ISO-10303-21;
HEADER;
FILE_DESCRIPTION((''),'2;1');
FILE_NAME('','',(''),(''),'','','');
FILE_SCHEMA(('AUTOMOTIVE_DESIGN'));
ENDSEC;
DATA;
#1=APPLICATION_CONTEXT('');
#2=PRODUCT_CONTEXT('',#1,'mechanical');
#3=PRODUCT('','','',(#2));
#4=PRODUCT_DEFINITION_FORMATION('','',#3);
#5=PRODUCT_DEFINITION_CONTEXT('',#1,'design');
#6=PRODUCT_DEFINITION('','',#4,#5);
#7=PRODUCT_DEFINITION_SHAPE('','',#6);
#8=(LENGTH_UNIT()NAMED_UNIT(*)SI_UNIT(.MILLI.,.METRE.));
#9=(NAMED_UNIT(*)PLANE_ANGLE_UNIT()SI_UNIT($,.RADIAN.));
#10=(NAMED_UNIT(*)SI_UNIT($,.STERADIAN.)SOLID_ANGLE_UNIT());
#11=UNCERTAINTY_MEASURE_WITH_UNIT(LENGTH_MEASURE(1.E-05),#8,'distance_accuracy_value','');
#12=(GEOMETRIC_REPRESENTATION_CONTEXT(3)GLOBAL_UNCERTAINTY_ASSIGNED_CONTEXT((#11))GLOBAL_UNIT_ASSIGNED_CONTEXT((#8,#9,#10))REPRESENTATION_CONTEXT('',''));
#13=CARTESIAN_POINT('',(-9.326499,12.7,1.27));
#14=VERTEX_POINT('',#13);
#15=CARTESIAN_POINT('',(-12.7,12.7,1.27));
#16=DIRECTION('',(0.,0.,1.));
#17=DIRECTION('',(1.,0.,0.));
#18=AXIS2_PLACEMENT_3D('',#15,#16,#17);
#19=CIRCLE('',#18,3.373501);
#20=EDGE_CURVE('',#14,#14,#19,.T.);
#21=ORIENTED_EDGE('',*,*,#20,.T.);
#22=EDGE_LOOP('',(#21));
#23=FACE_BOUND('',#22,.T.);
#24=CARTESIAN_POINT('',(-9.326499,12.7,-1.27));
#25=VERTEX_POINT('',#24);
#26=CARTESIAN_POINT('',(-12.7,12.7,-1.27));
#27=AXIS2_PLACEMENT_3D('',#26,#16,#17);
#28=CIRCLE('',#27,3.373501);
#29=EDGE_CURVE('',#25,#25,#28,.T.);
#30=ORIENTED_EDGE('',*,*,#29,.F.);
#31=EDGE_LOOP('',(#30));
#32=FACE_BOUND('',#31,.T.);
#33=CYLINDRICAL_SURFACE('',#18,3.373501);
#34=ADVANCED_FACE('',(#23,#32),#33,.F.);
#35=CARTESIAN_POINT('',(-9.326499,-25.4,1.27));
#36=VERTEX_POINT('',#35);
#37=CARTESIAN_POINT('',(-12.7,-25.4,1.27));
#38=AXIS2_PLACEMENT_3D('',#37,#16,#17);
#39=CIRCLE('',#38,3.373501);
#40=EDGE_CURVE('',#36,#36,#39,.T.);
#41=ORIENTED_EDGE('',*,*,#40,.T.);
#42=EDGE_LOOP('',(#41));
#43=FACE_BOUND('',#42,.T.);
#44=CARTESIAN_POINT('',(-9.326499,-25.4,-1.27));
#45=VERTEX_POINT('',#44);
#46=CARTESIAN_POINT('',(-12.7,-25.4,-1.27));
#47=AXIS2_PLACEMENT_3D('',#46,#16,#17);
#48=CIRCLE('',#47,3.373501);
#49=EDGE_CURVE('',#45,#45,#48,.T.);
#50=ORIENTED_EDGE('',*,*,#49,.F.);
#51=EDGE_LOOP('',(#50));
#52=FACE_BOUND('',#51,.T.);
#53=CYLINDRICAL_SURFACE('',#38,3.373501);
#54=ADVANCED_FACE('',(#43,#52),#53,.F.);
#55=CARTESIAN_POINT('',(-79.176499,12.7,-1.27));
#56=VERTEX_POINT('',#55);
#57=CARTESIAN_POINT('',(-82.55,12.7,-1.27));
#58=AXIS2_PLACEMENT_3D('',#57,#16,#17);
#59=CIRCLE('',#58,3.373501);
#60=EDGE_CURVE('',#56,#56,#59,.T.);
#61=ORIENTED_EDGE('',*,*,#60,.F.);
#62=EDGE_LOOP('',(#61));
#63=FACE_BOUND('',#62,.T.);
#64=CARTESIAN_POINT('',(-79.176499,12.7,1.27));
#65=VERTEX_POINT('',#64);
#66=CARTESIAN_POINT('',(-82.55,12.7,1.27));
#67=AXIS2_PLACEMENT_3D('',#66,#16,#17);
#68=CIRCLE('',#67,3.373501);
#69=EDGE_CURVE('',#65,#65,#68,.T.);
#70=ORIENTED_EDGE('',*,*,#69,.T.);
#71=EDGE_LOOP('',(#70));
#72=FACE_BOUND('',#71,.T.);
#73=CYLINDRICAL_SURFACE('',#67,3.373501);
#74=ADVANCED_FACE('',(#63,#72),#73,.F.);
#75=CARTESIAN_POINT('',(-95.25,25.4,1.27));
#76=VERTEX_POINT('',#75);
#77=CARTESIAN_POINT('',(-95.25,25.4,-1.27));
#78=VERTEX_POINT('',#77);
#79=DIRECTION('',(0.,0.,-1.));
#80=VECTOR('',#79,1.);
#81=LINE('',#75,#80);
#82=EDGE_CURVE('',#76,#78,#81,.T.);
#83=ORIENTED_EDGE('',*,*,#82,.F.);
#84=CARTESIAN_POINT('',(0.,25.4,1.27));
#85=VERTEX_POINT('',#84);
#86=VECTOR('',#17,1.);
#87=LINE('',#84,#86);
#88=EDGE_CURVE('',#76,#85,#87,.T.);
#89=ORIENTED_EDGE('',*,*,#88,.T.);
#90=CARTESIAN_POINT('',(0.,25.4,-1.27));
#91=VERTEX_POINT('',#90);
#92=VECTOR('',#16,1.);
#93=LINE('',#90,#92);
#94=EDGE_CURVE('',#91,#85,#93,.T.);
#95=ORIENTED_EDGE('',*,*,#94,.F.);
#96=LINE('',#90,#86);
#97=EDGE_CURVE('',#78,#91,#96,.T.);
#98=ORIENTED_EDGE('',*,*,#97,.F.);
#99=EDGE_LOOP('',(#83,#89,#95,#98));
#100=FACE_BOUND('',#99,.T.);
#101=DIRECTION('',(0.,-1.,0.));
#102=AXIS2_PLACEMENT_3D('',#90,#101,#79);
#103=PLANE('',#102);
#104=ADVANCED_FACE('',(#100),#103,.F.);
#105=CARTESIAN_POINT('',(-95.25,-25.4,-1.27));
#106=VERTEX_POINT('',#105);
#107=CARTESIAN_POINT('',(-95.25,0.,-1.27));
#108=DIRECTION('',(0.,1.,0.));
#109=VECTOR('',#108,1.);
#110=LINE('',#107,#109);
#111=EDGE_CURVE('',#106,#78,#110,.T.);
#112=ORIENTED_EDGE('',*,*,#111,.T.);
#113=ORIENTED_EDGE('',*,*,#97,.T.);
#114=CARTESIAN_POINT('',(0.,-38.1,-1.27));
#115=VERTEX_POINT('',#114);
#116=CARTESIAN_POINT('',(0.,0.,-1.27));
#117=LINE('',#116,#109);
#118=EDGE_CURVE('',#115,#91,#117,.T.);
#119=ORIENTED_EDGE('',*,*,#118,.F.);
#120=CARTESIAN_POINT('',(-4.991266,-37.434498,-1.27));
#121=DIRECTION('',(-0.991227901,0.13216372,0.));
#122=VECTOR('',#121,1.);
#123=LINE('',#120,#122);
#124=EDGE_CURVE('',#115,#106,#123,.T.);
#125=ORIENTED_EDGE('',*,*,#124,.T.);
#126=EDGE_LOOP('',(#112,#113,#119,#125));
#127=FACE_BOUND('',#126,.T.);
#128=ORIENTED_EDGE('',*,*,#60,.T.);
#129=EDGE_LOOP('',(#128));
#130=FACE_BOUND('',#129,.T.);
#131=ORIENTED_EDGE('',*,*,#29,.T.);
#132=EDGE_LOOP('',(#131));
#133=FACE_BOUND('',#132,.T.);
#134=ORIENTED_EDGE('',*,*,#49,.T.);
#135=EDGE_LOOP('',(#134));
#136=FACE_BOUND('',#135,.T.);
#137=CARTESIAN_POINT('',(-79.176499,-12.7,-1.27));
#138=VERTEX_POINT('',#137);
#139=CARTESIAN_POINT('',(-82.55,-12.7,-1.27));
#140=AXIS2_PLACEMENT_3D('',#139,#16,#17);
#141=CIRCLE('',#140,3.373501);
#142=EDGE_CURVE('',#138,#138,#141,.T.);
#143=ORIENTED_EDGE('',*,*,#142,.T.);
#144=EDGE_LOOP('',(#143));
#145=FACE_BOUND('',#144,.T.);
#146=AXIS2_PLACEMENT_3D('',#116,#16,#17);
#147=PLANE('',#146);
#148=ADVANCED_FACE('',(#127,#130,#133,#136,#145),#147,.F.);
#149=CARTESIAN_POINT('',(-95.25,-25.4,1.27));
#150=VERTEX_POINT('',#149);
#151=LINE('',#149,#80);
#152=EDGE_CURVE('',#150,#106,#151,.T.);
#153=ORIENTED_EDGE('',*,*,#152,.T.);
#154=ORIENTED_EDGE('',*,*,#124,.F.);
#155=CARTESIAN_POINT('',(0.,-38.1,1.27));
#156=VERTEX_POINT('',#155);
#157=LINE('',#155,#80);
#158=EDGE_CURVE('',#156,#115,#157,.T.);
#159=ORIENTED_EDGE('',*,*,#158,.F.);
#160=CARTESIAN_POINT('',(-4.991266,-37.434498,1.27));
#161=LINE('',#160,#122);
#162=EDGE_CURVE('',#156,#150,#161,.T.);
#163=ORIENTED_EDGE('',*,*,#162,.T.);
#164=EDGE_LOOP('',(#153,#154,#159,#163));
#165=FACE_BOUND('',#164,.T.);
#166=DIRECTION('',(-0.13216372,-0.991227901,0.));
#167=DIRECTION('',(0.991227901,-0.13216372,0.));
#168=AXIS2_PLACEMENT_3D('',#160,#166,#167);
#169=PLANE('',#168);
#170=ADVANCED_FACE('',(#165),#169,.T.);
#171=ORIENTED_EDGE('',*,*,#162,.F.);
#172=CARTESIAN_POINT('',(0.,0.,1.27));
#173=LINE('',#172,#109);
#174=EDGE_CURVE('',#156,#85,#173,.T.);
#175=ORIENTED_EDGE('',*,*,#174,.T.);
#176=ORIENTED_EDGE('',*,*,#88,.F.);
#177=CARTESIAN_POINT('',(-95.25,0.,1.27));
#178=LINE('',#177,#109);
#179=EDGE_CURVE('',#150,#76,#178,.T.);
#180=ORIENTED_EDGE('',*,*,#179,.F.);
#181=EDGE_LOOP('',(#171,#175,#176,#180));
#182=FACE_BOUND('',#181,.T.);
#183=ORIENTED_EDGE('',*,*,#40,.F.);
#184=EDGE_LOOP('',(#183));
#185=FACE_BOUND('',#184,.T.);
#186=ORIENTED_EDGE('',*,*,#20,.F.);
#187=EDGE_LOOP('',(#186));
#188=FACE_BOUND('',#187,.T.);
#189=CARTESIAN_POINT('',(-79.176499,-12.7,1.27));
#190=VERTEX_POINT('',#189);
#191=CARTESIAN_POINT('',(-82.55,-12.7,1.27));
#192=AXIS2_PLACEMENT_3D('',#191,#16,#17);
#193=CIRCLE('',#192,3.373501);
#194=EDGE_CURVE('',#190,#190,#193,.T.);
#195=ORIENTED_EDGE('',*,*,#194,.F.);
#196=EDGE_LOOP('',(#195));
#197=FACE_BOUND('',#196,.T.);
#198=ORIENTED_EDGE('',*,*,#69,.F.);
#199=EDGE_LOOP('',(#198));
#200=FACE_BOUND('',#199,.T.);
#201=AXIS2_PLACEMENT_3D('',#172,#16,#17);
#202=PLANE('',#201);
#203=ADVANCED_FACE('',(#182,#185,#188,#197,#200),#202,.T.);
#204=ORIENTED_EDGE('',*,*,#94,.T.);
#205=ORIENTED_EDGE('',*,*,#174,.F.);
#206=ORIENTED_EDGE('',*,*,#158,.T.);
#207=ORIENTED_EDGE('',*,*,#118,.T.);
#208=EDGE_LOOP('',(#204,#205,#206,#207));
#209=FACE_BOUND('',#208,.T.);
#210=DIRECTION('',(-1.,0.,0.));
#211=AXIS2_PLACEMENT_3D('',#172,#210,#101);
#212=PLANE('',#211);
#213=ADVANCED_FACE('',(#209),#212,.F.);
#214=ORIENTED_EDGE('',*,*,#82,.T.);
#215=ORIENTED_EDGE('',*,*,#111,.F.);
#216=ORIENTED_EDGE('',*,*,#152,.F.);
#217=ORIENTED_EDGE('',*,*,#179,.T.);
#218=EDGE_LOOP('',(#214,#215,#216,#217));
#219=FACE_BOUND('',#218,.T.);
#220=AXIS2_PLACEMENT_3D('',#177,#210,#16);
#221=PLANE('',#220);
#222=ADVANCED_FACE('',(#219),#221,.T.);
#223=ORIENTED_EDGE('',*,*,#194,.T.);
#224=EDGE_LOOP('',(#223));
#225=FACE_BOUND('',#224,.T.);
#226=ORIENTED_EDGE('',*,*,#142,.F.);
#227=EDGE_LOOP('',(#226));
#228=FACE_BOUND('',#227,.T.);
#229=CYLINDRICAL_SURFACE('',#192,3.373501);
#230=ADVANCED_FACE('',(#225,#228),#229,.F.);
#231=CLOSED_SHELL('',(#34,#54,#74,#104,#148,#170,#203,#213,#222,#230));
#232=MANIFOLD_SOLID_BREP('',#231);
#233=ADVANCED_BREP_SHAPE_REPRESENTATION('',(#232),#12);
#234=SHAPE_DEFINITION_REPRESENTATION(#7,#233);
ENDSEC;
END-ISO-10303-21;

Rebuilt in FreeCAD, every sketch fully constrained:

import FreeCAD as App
import Part
import Sketcher

V = App.Vector
Q = App.Units.Quantity

doc = App.newDocument("Part")
body = doc.addObject("PartDesign::Body", "Body")

sketch1 = body.newObject("Sketcher::SketchObject", "Sketch")
sketch1.AttachmentSupport = (doc.getObject("XY_Plane"), [""])
sketch1.MapMode = "FlatFace"
sketch1.addGeometry([
    Part.LineSegment(V(-95, 25, 0), V(-95, -25, 0)),
    Part.LineSegment(V(-95, -25, 0), V(0, -38, 0)),
    Part.LineSegment(V(0, -38, 0), V(0, 38, 0)),
    Part.LineSegment(V(0, 38, 0), V(-95, 25, 0)),
], False)
sketch1.addConstraint([
    Sketcher.Constraint("Coincident", 0, 2, 1, 1),
    Sketcher.Constraint("Coincident", 1, 2, 2, 1),
    Sketcher.Constraint("Coincident", 2, 2, 3, 1),
    Sketcher.Constraint("Coincident", 3, 2, 0, 1),
    Sketcher.Constraint("Vertical", 0),
    Sketcher.Constraint("Vertical", 2),
    Sketcher.Constraint("Symmetric", 1, 2, 2, 2, -1, 1),
    Sketcher.Constraint("Equal", 1, 3),
    Sketcher.Constraint("DistanceY", 0, 2, 0, 1, Q("2 in")),
    Sketcher.Constraint("DistanceY", 2, 1, 2, 2, Q("3 in")),
    Sketcher.Constraint("DistanceX", 0, 2, -1, 1, Q("3.75 in")),
])
pad1 = body.newObject("PartDesign::Pad", "Pad")
pad1.Profile = sketch1
pad1.Length = Q("0.1 in")
pad1.Midplane = True

sketch2 = body.newObject("Sketcher::SketchObject", "Sketch001")
sketch2.AttachmentSupport = (doc.getObject("XY_Plane"), [""])
sketch2.MapMode = "FlatFace"
sketch2.AttachmentOffset = App.Placement(V(0, 0, 0.05 * 25.4), App.Rotation())
sketch2.addGeometry([
    Part.LineSegment(V(-108, 38, 0), V(-108, 25, 0)),
    Part.LineSegment(V(-108, 25, 0), V(0, 25, 0)),
    Part.LineSegment(V(0, 25, 0), V(0, 38, 0)),
    Part.LineSegment(V(0, 38, 0), V(-108, 38, 0)),
], False)
sketch2.addConstraint([
    Sketcher.Constraint("Coincident", 0, 2, 1, 1),
    Sketcher.Constraint("Coincident", 1, 2, 2, 1),
    Sketcher.Constraint("Coincident", 2, 2, 3, 1),
    Sketcher.Constraint("Coincident", 3, 2, 0, 1),
    Sketcher.Constraint("Vertical", 0),
    Sketcher.Constraint("Horizontal", 1),
    Sketcher.Constraint("Vertical", 2),
    Sketcher.Constraint("Horizontal", 3),
    Sketcher.Constraint("PointOnObject", 1, 2, -2),
    Sketcher.Constraint("DistanceY", 0, 2, 0, 1, Q("0.5 in")),
    Sketcher.Constraint("DistanceY", -1, 1, 0, 2, Q("1 in")),
    Sketcher.Constraint("DistanceX", 1, 1, 1, 2, Q("107.901988 mm")),
])
pocket1 = body.newObject("PartDesign::Pocket", "Pocket")
pocket1.Profile = sketch2
pocket1.Type = "ThroughAll"
pocket1.Midplane = True

sketch3 = body.newObject("Sketcher::SketchObject", "Sketch002")
sketch3.AttachmentSupport = (doc.getObject("XY_Plane"), [""])
sketch3.MapMode = "FlatFace"
sketch3.AttachmentOffset = App.Placement(V(0, 0, 0.05 * 25.4), App.Rotation())
sketch3.addGeometry([
    Part.Circle(V(-82.5, 12.7, 0), V(0, 0, 1), 3.4),
    Part.Circle(V(-82.5, -12.7, 0), V(0, 0, 1), 3.4),
    Part.Circle(V(-12.7, -25.4, 0), V(0, 0, 1), 3.4),
    Part.Circle(V(-12.7, 12.7, 0), V(0, 0, 1), 3.4),
], False)
sketch3.addConstraint([
    Sketcher.Constraint("Equal", 0, 1),
    Sketcher.Constraint("Equal", 1, 2),
    Sketcher.Constraint("Equal", 2, 3),
    Sketcher.Constraint("Symmetric", 0, 3, 1, 3, -1),
    Sketcher.Constraint("Horizontal", 0, 3, 3, 3),
    Sketcher.Constraint("Vertical", 2, 3, 3, 3),
    Sketcher.Constraint("DistanceY", 2, 3, -1, 1, Q("1 in")),
    Sketcher.Constraint("DistanceY", 1, 3, 0, 3, Q("1 in")),
    Sketcher.Constraint("DistanceX", 2, 3, -1, 1, Q("0.5 in")),
    Sketcher.Constraint("DistanceX", 0, 3, -1, 1, Q("3.25 in")),
    Sketcher.Constraint("Diameter", 0, Q("6.747002 mm")),
])
doc.recompute()
hole = body.newObject("PartDesign::Hole", "Hole")
hole.Profile = sketch3
hole.ThreadType = "None"
hole.Diameter = 6.747002
hole.DepthType = "ThroughAll"

doc.recompute()
